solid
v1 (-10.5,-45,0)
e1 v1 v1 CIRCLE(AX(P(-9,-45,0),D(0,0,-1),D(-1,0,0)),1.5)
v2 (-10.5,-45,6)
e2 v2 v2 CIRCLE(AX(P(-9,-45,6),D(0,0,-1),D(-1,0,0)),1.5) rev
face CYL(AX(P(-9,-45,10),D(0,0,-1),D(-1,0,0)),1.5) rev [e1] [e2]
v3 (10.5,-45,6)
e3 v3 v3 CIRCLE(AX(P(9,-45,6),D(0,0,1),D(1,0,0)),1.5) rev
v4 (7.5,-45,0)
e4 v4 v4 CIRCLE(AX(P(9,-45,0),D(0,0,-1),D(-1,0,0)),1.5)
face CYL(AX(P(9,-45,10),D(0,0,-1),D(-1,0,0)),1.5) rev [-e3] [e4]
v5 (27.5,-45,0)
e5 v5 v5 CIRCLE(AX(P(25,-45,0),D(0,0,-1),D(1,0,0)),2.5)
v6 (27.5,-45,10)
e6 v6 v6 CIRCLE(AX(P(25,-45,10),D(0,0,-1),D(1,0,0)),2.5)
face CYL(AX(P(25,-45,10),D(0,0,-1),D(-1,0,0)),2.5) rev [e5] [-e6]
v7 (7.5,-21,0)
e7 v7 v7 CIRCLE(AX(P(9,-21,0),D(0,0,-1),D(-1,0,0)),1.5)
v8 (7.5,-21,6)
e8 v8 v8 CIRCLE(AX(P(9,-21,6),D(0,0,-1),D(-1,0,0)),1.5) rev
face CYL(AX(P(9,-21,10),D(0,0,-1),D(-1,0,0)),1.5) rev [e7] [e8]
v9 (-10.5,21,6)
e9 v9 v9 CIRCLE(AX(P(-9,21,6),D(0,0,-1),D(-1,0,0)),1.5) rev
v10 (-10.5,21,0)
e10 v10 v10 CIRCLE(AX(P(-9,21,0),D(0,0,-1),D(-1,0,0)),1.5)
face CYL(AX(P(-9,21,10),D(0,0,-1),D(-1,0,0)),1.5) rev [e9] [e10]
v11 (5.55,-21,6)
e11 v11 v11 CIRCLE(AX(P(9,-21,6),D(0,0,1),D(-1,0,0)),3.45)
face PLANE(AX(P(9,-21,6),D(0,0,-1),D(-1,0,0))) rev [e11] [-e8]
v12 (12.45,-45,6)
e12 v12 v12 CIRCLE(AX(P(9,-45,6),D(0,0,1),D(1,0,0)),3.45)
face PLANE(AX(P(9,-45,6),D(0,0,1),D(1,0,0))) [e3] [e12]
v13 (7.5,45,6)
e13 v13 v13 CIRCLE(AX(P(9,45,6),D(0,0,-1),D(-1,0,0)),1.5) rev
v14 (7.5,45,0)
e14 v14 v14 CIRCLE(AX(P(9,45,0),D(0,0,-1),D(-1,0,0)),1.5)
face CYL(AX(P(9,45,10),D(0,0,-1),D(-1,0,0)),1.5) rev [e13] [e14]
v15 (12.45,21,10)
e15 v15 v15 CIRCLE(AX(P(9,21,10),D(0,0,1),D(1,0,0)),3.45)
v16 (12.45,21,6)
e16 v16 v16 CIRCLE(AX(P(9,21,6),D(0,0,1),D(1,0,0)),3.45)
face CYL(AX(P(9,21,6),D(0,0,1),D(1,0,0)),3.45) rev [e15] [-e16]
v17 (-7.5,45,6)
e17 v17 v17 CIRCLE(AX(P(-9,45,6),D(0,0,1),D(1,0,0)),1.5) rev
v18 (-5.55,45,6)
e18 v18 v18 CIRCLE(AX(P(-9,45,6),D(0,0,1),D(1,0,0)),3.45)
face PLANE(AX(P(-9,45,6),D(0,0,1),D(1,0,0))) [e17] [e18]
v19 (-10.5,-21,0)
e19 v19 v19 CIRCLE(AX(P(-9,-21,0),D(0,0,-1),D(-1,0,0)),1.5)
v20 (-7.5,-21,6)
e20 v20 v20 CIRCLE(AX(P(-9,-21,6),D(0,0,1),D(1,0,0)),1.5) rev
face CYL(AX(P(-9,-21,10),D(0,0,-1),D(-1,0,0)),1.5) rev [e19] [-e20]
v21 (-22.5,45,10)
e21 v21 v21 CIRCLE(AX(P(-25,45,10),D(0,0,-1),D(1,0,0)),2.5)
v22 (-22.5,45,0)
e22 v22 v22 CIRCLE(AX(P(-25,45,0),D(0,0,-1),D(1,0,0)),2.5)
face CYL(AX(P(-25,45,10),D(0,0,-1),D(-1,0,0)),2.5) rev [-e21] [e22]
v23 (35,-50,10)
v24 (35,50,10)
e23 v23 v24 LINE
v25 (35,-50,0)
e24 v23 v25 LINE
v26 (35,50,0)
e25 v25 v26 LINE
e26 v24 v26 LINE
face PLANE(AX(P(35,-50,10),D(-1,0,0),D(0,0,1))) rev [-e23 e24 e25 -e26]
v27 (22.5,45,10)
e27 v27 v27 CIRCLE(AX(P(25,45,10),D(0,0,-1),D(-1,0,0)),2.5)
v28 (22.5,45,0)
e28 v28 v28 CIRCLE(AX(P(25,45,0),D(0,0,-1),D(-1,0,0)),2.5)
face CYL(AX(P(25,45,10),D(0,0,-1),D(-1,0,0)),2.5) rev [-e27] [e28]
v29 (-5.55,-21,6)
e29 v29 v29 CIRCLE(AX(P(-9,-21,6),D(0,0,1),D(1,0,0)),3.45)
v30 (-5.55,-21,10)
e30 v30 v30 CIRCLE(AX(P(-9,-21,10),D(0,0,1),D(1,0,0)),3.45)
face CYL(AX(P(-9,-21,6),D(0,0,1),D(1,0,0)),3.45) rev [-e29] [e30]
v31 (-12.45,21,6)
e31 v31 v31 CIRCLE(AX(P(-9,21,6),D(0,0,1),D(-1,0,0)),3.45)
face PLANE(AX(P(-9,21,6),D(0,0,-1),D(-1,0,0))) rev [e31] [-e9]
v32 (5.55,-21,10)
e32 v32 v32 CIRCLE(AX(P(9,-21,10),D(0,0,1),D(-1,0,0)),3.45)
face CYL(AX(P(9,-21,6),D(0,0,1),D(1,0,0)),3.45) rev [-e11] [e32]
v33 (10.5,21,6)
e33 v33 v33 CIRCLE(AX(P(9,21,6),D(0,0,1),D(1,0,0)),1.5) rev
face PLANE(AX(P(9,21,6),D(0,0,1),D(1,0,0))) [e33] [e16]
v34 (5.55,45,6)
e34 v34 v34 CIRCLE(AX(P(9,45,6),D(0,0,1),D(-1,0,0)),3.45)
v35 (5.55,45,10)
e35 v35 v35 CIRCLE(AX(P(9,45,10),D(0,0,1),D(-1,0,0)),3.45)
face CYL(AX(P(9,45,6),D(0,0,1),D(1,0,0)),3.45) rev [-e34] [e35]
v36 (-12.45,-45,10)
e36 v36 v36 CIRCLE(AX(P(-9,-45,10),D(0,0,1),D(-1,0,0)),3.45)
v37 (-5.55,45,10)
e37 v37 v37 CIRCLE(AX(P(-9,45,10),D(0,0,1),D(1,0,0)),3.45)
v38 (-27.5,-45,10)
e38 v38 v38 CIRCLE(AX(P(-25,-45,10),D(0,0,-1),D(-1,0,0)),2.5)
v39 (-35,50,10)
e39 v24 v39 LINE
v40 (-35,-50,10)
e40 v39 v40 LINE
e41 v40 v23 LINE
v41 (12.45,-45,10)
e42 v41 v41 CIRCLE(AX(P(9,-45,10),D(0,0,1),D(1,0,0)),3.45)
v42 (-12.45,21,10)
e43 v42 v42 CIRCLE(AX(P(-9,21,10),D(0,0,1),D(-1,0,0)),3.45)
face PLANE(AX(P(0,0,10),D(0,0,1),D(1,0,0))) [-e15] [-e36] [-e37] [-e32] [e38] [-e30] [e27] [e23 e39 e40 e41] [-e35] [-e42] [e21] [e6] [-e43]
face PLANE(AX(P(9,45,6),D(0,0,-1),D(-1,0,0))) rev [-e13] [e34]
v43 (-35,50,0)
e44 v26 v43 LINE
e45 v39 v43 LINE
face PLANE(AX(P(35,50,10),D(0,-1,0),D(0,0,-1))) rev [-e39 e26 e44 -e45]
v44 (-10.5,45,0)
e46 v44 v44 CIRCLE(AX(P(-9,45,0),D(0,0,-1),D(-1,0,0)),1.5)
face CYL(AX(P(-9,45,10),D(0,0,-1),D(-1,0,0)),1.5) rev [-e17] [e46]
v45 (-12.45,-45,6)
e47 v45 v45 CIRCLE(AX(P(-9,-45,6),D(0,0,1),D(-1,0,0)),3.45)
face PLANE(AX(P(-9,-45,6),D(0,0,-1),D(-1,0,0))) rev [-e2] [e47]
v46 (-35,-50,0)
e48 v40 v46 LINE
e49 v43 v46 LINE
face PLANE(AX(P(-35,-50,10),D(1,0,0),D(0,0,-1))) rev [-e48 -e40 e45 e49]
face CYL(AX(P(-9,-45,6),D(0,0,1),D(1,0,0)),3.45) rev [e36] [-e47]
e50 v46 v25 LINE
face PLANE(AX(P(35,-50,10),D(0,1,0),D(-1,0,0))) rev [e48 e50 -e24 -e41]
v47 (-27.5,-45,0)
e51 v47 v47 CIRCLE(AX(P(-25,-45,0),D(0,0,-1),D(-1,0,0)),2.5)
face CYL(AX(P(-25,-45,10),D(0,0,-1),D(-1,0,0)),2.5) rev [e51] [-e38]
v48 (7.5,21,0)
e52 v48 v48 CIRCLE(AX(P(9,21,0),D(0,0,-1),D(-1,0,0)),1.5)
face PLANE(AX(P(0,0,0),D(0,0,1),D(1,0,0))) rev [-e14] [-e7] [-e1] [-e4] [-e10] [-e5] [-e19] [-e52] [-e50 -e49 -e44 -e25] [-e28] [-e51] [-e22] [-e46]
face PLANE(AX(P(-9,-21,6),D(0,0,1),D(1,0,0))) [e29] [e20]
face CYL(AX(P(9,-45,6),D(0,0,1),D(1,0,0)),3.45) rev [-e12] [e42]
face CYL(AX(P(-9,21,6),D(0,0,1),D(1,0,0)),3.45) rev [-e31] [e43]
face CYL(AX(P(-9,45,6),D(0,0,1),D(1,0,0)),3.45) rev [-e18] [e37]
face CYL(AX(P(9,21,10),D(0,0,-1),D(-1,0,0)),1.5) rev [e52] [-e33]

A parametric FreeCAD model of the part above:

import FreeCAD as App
import Part
import Sketcher
Q = App.Units.Quantity

doc = App.newDocument("Part")
body = doc.addObject("PartDesign::Body", "Body")

# Sketch on XY plane
sketch1 = body.newObject("Sketcher::SketchObject", "Sketch")
sketch1.AttachmentSupport = (doc.getObject("XY_Plane"), [""])
sketch1.MapMode = "FlatFace"
sketch1.addGeometry([
    Part.LineSegment(App.Vector(-35, 50, 0), App.Vector(-35, -50, 0)),
    Part.LineSegment(App.Vector(-35, -50, 0), App.Vector(35, -50, 0)),
    Part.LineSegment(App.Vector(35, -50, 0), App.Vector(35, 50, 0)),
    Part.LineSegment(App.Vector(35, 50, 0), App.Vector(-35, 50, 0)),
], False)
sketch1.addConstraint([
    Sketcher.Constraint("Coincident", 0, 2, 1, 1),
    Sketcher.Constraint("Coincident", 1, 2, 2, 1),
    Sketcher.Constraint("Coincident", 2, 2, 3, 1),
    Sketcher.Constraint("Coincident", 3, 2, 0, 1),
    Sketcher.Constraint("Vertical", 0),
    Sketcher.Constraint("Horizontal", 1),
    Sketcher.Constraint("Vertical", 2),
    Sketcher.Constraint("Horizontal", 3),
    Sketcher.Constraint("Symmetric", 0, 2, 2, 2, -1, 1),
    Sketcher.Constraint("DistanceX", 1, 1, 1, 2, Q("70 mm")),
    Sketcher.Constraint("DistanceY", 0, 2, 0, 1, Q("100 mm")),
])
pad1 = body.newObject("PartDesign::Pad", "Pad")
pad1.Profile = sketch1
pad1.Length = 10

# Sketch on XY plane
sketch2 = body.newObject("Sketcher::SketchObject", "Sketch001")
sketch2.AttachmentSupport = (doc.getObject("XY_Plane"), [""])
sketch2.MapMode = "FlatFace"
sketch2.addGeometry([
    Part.Circle(App.Vector(25, 45, 0), App.Vector(0, 0, 1), 2.5),
    Part.Circle(App.Vector(-25, 45, 0), App.Vector(0, 0, 1), 2.5),
    Part.Circle(App.Vector(25, -45, 0), App.Vector(0, 0, 1), 2.5),
    Part.Circle(App.Vector(-25, -45, 0), App.Vector(0, 0, 1), 2.5),
], False)
sketch2.addConstraint([
    Sketcher.Constraint("Equal", 0, 1),
    Sketcher.Constraint("Equal", 1, 2),
    Sketcher.Constraint("Equal", 2, 3),
    Sketcher.Constraint("Symmetric", 1, 3, 2, 3, -1, 1),
    Sketcher.Constraint("Symmetric", 0, 3, 3, 3, -1, 1),
    Sketcher.Constraint("Symmetric", 0, 3, 1, 3, -2),
    Sketcher.Constraint("Diameter", 0, Q("5 mm")),
    Sketcher.Constraint("DistanceX", -1, 1, 0, 3, Q("25 mm")),
    Sketcher.Constraint("DistanceY", -1, 1, 0, 3, Q("45 mm")),
])
pocket1 = body.newObject("PartDesign::Pocket", "Pocket")
pocket1.Profile = sketch2
pocket1.Type = "ThroughAll"
pocket1.Reversed = True

# Sketch on XY plane
sketch3 = body.newObject("Sketcher::SketchObject", "Sketch002")
sketch3.AttachmentSupport = (doc.getObject("XY_Plane"), [""])
sketch3.MapMode = "FlatFace"
sketch3.addGeometry([
    Part.Circle(App.Vector(-9, 21, 0), App.Vector(0, 0, 1), 1.5),  # 0
    Part.Circle(App.Vector(-9, 45, 0), App.Vector(0, 0, 1), 1.5),  # 1
    Part.Circle(App.Vector(9, 21, 0), App.Vector(0, 0, 1), 1.5),  # 2
    Part.Circle(App.Vector(9, 45, 0), App.Vector(0, 0, 1), 1.5),  # 3
    Part.Circle(App.Vector(-9, -45, 0), App.Vector(0, 0, 1), 1.5),  # 4
    Part.Circle(App.Vector(-9, -21, 0), App.Vector(0, 0, 1), 1.5),  # 5
    Part.Circle(App.Vector(9, -45, 0), App.Vector(0, 0, 1), 1.5),  # 6
    Part.Circle(App.Vector(9, -21, 0), App.Vector(0, 0, 1), 1.5),  # 7
], False)
sketch3.addConstraint([
    Sketcher.Constraint("Equal", 0, 1),
    Sketcher.Constraint("Equal", 1, 2),
    Sketcher.Constraint("Equal", 2, 3),
    Sketcher.Constraint("Equal", 3, 4),
    Sketcher.Constraint("Equal", 4, 5),
    Sketcher.Constraint("Equal", 5, 6),
    Sketcher.Constraint("Equal", 6, 7),
    Sketcher.Constraint("Symmetric", 3, 3, 4, 3, -1, 1),
    Sketcher.Constraint("Symmetric", 2, 3, 5, 3, -1, 1),
    Sketcher.Constraint("Symmetric", 1, 3, 6, 3, -1, 1),
    Sketcher.Constraint("Symmetric", 0, 3, 7, 3, -1, 1),
    Sketcher.Constraint("Symmetric", 0, 3, 2, 3, -2),
    Sketcher.Constraint("Symmetric", 1, 3, 3, 3, -2),
    Sketcher.Constraint("Vertical", 0, 3, 1, 3),
    Sketcher.Constraint("Diameter", 0, Q("3 mm")),
    Sketcher.Constraint("DistanceX", 0, 3, -1, 1, Q("9 mm")),
    Sketcher.Constraint("DistanceY", -1, 1, 0, 3, Q("21 mm")),
    Sketcher.Constraint("DistanceY", -1, 1, 1, 3, Q("45 mm")),
])
pocket2 = body.newObject("PartDesign::Pocket", "Pocket001")
pocket2.Profile = sketch3
pocket2.Type = "ThroughAll"
pocket2.Reversed = True

# Sketch on XY plane
sketch4 = body.newObject("Sketcher::SketchObject", "Sketch003")
sketch4.AttachmentSupport = (doc.getObject("XY_Plane"), [""])
sketch4.MapMode = "FlatFace"
sketch4.AttachmentOffset = App.Placement(App.Vector(0, 0, 10), App.Rotation())
sketch4.addGeometry([
    Part.Circle(App.Vector(-9, 45, 0), App.Vector(0, 0, 1), 3.45),  # 0
    Part.Circle(App.Vector(-9, 21, 0), App.Vector(0, 0, 1), 3.45),  # 1
    Part.Circle(App.Vector(9, 21, 0), App.Vector(0, 0, 1), 3.45),  # 2
    Part.Circle(App.Vector(9, 45, 0), App.Vector(0, 0, 1), 3.45),  # 3
    Part.Circle(App.Vector(9, -21, 0), App.Vector(0, 0, 1), 3.45),  # 4
    Part.Circle(App.Vector(-9, -21, 0), App.Vector(0, 0, 1), 3.45),  # 5
    Part.Circle(App.Vector(-9, -45, 0), App.Vector(0, 0, 1), 3.45),  # 6
    Part.Circle(App.Vector(9, -45, 0), App.Vector(0, 0, 1), 3.45),  # 7
], False)
sketch4.addConstraint([
    Sketcher.Constraint("Equal", 0, 1),
    Sketcher.Constraint("Equal", 1, 2),
    Sketcher.Constraint("Equal", 2, 3),
    Sketcher.Constraint("Equal", 3, 4),
    Sketcher.Constraint("Equal", 4, 5),
    Sketcher.Constraint("Equal", 5, 6),
    Sketcher.Constraint("Equal", 6, 7),
    Sketcher.Constraint("Symmetric", 1, 3, 4, 3, -1, 1),
    Sketcher.Constraint("Symmetric", 2, 3, 5, 3, -1, 1),
    Sketcher.Constraint("Symmetric", 3, 3, 6, 3, -1, 1),
    Sketcher.Constraint("Symmetric", 0, 3, 7, 3, -1, 1),
    Sketcher.Constraint("Symmetric", 1, 3, 2, 3, -2),
    Sketcher.Constraint("Symmetric", 0, 3, 3, 3, -2),
    Sketcher.Constraint("Vertical", 0, 3, 1, 3),
    Sketcher.Constraint("Diameter", 0, Q("6.9 mm")),
    Sketcher.Constraint("DistanceX", 0, 3, -1, 1, Q("9 mm")),
    Sketcher.Constraint("DistanceY", -1, 1, 0, 3, Q("45 mm")),
    Sketcher.Constraint("DistanceY", -1, 1, 1, 3, Q("21 mm")),
])
pocket3 = body.newObject("PartDesign::Pocket", "Pocket002")
pocket3.Profile = sketch4
pocket3.Length = 4

doc.recompute()
